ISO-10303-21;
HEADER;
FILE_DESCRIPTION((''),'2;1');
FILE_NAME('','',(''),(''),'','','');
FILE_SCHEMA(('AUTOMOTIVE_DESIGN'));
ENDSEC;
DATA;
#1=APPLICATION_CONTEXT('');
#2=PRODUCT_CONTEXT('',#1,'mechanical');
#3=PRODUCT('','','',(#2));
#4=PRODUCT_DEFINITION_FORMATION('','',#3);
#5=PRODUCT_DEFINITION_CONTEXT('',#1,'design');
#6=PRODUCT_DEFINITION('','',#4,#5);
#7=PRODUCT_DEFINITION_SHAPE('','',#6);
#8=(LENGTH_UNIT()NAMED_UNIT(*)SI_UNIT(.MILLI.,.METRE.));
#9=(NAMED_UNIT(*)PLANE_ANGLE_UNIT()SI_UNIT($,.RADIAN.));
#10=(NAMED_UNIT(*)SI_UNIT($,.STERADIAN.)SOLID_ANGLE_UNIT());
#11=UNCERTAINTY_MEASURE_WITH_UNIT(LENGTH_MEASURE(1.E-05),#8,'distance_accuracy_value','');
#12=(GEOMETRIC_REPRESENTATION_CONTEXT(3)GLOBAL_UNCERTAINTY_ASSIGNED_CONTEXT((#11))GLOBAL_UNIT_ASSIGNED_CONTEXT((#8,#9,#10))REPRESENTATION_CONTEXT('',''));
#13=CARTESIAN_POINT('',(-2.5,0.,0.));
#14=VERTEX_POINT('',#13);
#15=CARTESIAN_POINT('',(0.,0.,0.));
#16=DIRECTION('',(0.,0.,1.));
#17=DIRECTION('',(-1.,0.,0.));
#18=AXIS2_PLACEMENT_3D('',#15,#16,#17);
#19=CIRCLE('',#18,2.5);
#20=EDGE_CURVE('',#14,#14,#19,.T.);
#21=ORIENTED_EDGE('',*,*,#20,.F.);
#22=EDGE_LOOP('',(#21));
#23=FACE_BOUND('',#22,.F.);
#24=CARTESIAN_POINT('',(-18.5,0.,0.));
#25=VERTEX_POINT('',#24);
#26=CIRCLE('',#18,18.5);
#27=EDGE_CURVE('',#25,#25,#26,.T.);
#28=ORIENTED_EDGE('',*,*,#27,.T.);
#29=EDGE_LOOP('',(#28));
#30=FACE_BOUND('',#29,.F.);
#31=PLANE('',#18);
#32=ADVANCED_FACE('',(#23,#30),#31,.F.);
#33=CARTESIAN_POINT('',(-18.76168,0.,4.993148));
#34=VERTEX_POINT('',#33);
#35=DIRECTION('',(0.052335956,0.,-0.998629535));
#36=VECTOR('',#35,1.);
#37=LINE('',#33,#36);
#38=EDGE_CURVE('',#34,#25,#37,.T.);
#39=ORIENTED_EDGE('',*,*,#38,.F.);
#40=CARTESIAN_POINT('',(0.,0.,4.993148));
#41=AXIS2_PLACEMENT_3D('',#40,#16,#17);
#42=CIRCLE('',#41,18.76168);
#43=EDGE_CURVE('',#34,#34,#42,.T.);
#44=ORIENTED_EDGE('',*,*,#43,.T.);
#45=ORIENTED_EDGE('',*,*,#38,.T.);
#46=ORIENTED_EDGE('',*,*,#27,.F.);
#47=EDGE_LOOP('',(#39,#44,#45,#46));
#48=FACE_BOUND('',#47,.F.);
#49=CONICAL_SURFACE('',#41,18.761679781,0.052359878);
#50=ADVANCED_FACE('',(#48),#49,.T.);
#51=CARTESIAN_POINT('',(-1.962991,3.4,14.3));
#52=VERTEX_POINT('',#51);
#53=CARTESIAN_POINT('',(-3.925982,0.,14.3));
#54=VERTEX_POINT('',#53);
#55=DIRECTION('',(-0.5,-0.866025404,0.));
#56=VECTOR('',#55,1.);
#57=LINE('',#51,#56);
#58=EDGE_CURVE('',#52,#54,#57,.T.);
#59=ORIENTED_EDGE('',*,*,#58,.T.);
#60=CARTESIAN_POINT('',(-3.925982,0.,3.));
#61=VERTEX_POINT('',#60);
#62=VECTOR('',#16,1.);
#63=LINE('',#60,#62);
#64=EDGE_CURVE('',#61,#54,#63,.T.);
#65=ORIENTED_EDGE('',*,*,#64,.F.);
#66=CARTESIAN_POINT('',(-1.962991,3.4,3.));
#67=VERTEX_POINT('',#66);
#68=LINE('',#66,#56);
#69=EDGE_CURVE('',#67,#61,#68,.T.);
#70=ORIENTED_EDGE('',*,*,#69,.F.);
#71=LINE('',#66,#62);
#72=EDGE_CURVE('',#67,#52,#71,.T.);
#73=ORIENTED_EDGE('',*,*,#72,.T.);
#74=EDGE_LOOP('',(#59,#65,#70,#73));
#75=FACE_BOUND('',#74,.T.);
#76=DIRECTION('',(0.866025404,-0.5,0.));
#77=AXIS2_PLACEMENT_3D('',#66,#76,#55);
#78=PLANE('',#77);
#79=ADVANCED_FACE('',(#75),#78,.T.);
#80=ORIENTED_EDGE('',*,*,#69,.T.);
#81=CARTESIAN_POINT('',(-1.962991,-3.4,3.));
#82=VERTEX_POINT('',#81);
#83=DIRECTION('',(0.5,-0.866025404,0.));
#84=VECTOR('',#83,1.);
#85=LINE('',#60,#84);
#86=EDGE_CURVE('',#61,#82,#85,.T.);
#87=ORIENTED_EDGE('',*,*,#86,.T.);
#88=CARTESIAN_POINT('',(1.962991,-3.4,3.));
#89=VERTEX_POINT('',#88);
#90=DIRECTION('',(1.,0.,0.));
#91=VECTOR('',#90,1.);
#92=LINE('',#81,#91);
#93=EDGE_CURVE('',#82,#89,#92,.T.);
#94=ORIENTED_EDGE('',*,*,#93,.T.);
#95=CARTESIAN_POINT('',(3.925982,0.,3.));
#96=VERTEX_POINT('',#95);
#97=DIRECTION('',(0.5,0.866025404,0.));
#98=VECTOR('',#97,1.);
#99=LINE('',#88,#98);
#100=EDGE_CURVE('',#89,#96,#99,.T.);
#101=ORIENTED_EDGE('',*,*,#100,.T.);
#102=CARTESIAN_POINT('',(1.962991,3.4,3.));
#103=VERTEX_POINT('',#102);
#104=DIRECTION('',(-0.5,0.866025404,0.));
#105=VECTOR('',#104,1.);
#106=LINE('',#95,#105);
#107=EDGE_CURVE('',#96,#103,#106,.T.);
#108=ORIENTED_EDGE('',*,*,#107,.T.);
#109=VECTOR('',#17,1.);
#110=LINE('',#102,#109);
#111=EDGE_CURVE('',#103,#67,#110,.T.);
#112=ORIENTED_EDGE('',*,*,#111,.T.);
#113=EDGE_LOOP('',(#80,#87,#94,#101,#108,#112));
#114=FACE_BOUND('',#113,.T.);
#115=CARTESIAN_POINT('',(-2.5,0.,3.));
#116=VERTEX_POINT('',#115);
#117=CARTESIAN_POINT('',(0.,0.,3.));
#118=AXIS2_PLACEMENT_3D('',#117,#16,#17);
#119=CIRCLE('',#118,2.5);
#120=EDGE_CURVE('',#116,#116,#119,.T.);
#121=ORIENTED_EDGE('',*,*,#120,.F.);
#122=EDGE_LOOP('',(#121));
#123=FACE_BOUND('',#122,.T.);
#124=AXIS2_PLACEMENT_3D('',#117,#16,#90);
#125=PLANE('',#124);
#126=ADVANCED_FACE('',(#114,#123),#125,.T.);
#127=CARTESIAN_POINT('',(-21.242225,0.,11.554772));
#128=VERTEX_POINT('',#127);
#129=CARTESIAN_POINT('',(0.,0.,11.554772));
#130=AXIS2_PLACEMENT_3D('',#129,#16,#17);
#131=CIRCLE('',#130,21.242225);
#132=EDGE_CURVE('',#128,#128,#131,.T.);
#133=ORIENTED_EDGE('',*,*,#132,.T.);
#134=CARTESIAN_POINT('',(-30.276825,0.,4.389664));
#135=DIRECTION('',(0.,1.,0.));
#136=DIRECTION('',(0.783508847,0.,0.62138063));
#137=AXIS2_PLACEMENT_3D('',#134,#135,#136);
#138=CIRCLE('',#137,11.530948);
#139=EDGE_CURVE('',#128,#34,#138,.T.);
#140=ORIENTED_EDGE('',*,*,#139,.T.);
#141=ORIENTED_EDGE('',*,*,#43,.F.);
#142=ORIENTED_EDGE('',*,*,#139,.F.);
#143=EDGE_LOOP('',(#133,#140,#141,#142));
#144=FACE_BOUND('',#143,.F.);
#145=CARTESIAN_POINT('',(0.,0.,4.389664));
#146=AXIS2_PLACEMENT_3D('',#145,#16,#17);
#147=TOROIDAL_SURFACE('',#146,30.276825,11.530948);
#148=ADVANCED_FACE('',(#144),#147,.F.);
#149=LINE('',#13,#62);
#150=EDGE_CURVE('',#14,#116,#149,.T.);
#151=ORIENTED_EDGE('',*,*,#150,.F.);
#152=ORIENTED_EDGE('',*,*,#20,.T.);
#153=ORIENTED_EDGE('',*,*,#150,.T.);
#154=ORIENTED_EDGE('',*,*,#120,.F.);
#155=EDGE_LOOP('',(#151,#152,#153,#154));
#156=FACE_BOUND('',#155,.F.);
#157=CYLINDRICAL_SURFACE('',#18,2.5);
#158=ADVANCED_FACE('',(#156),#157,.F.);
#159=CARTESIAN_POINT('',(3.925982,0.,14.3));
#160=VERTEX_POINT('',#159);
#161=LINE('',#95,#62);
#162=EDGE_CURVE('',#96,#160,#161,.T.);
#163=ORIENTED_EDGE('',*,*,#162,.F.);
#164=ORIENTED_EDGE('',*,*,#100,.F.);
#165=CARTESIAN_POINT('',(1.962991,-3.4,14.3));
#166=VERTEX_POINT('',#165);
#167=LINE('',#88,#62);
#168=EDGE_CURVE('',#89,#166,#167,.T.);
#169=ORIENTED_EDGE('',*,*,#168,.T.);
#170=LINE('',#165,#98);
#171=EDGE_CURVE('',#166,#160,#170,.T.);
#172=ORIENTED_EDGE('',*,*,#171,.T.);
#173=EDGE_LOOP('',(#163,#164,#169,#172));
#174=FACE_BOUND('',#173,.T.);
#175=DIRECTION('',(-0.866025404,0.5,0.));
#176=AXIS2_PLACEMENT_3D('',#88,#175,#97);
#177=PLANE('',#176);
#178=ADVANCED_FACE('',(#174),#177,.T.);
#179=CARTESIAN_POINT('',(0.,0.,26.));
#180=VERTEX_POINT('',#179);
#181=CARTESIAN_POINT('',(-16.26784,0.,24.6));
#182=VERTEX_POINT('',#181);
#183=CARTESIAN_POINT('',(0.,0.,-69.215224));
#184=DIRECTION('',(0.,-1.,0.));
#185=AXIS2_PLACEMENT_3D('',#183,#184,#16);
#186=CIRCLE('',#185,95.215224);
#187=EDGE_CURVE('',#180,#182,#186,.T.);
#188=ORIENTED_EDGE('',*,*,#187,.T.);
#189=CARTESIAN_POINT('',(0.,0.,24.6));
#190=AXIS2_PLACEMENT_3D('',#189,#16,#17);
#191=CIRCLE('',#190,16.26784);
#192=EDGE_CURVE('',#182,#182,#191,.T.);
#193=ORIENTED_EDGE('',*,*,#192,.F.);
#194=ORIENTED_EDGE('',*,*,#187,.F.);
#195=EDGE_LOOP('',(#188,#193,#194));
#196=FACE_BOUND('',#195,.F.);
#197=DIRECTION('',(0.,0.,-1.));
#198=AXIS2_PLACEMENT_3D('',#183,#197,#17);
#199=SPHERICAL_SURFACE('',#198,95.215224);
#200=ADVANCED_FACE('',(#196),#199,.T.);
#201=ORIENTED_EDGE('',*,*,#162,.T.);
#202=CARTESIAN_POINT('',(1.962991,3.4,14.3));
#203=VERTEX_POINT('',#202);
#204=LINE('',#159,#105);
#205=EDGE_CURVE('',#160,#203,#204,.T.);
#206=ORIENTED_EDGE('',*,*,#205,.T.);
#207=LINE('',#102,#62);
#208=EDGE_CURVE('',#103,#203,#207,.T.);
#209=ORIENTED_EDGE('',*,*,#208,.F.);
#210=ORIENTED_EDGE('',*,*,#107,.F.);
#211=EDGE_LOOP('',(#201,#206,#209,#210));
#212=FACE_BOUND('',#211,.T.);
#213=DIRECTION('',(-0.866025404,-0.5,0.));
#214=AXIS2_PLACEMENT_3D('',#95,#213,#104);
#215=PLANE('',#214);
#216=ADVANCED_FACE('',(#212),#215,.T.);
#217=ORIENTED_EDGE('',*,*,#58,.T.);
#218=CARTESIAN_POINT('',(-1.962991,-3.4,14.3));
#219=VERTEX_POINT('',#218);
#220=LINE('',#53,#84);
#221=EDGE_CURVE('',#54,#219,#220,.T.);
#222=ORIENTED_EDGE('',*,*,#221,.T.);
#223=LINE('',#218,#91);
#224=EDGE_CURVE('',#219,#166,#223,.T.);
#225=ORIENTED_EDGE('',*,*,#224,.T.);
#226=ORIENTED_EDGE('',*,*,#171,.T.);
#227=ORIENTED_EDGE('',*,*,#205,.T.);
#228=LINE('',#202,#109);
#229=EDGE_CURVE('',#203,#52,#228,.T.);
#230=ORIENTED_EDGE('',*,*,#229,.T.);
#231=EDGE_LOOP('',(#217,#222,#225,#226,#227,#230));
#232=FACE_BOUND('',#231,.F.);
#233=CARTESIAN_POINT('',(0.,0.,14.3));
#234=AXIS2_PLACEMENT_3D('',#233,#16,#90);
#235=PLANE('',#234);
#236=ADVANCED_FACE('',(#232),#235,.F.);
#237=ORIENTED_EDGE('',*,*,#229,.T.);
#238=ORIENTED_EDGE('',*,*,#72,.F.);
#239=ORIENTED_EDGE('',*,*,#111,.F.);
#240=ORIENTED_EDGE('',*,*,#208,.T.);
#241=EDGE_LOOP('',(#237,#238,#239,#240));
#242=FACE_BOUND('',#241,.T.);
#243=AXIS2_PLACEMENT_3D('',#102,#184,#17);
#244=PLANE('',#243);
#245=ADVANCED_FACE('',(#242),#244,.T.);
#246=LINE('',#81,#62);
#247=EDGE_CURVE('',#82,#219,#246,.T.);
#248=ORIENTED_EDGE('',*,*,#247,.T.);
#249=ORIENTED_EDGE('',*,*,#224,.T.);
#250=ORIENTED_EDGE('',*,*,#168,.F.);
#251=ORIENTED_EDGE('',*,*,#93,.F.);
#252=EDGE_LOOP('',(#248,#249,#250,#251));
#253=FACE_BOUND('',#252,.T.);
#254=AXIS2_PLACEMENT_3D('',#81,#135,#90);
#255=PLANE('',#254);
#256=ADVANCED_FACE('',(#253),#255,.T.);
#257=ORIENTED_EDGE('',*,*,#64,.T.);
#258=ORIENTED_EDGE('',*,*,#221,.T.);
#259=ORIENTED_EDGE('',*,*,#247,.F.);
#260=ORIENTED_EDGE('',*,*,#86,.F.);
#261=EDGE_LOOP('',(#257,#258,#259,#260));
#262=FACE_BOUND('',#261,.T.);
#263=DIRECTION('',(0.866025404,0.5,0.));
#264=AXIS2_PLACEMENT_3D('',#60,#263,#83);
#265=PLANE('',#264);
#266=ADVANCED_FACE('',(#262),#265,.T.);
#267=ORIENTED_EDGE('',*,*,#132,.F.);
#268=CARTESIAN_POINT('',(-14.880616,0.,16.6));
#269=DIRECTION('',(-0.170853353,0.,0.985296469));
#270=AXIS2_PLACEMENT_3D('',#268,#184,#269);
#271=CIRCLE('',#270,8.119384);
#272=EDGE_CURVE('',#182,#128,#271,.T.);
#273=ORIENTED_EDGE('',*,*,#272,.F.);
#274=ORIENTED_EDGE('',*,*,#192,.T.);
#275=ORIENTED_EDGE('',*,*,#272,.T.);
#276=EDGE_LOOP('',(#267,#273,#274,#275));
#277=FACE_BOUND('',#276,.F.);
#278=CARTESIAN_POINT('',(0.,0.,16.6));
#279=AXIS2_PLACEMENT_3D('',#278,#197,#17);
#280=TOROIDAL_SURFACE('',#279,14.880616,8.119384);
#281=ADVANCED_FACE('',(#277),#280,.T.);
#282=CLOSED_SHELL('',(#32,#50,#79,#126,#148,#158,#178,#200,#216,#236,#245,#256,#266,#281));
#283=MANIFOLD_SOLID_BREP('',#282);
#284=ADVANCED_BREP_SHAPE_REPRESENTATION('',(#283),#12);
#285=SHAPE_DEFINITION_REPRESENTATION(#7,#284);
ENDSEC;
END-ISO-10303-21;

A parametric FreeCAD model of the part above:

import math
import FreeCAD as App
import Part
import Sketcher
from FreeCAD import Vector
Q = App.Units.Quantity


def add_polygon(sketch, points):
    """Adds a closed chain of lines whose ends are joined by coincident constraints."""
    first, n = sketch.GeometryCount, len(points)
    for a, b in zip(points, points[1:] + points[:1]):
        sketch.addGeometry(Part.LineSegment(App.Vector(*a, 0), App.Vector(*b, 0)), False)
    for i in range(n):
        sketch.addConstraint(Sketcher.Constraint("Coincident", first + i, 2, first + (i + 1) % n, 1))

doc = App.newDocument("Part")
body = doc.addObject("PartDesign::Body", "Body")

sketch1 = body.newObject("Sketcher::SketchObject", "Sketch")
sketch1.AttachmentSupport = (doc.getObject("XZ_Plane"), [""])
sketch1.MapMode = "FlatFace"
sketch1.addGeometry(Part.LineSegment(Vector(0, 10, 0), Vector(0, 26, 0)), False)
sketch1.addGeometry(Part.ArcOfCircle(Part.Circle(Vector(0, -69.215224, 0), Vector(0, 0, 1), 95.215224), math.radians(90), math.radians(99.837438)), False)
sketch1.addGeometry(Part.ArcOfCircle(Part.Circle(Vector(-14.880616, 16.6, 0), Vector(0, 0, 1), 8.119384), math.radians(99.837438), math.radians(218.417026)), False)
sketch1.addGeometry(Part.ArcOfCircle(Part.Circle(Vector(-30.276825, 4.389664, 0), Vector(0, 0, 1), 11.530948), math.radians(3), math.radians(38.417026)), False)
sketch1.addGeometry(Part.LineSegment(Vector(-18.76168, 4.993148, 0), Vector(-18.5, 0, 0)), False)
sketch1.addGeometry(Part.LineSegment(Vector(-18.5, 0, 0), Vector(-2.5, 0, 0)), False)
sketch1.addGeometry(Part.LineSegment(Vector(-2.5, 0, 0), Vector(-2.5, 10, 0)), False)
sketch1.addGeometry(Part.LineSegment(Vector(-2.5, 10, 0), Vector(0, 10, 0)), False)
sketch1.addConstraint(Sketcher.Constraint("Coincident", 0, 2, 1, 1))
sketch1.addConstraint(Sketcher.Constraint("Tangent", 1, 2, 2, 1))
sketch1.addConstraint(Sketcher.Constraint("Tangent", 2, 2, 3, 2))
sketch1.addConstraint(Sketcher.Constraint("Tangent", 3, 1, 4, 1))
sketch1.addConstraint(Sketcher.Constraint("Coincident", 4, 2, 5, 1))
sketch1.addConstraint(Sketcher.Constraint("Coincident", 5, 2, 6, 1))
sketch1.addConstraint(Sketcher.Constraint("Coincident", 6, 2, 7, 1))
sketch1.addConstraint(Sketcher.Constraint("Coincident", 7, 2, 0, 1))
sketch1.addConstraint(Sketcher.Constraint("Vertical", 0))
sketch1.addConstraint(Sketcher.Constraint("Horizontal", 5))
sketch1.addConstraint(Sketcher.Constraint("Vertical", 6))
sketch1.addConstraint(Sketcher.Constraint("Horizontal", 7))
sketch1.addConstraint(Sketcher.Constraint("PointOnObject", 1, 3, -2))
sketch1.addConstraint(Sketcher.Constraint("PointOnObject", 0, 2, -2))
sketch1.addConstraint(Sketcher.Constraint("PointOnObject", 4, 2, -1))
sketch1.addConstraint(Sketcher.Constraint("Equal", 5, 0))
sketch1.addConstraint(Sketcher.Constraint("DistanceX", 5, 1, 5, 2, Q("16 mm")))
sketch1.addConstraint(Sketcher.Constraint("DistanceY", 6, 1, 6, 2, Q("10 mm")))
sketch1.addConstraint(Sketcher.Constraint("Angle", 4, Q("-87 deg")))
sketch1.addConstraint(Sketcher.Constraint("Distance", 4, Q("5 mm")))
sketch1.addConstraint(Sketcher.Constraint("DistanceX", 7, 1, 7, 2, Q("2.5 mm")))
sketch1.addConstraint(Sketcher.Constraint("DistanceY", 2, 3, 1, 2, Q("8 mm")))
sketch1.addConstraint(Sketcher.Constraint("DistanceY", -1, 1, 2, 3, Q("16.6 mm")))
sketch1.addConstraint(Sketcher.Constraint("Radius", 3, Q("11.530948 mm")))
revolution = body.newObject("PartDesign::Revolution", "Revolution")
revolution.Profile = sketch1
revolution.ReferenceAxis = (sketch1, ["V_Axis"])
revolution.Angle = 360

sketch2 = body.newObject("Sketcher::SketchObject", "Sketch001")
sketch2.AttachmentSupport = (doc.getObject("XY_Plane"), [""])
sketch2.MapMode = "FlatFace"
sketch2.AttachmentOffset = App.Placement(Vector(0, 0, 3), App.Rotation())
add_polygon(sketch2, [(-1.962991, -3.4), (1.962991, -3.4), (3.925982, 0), (1.962991, 3.4), (-1.962991, 3.4), (-3.925982, 0)])
sketch2.addConstraint(Sketcher.Constraint("Horizontal", 0))
sketch2.addConstraint(Sketcher.Constraint("Horizontal", 3))
sketch2.addConstraint(Sketcher.Constraint("Symmetric", 0, 2, 3, 2, -1, 1))
sketch2.addConstraint(Sketcher.Constraint("Symmetric", 1, 2, 4, 2, -1, 1))
sketch2.addConstraint(Sketcher.Constraint("PointOnObject", 1, 2, -1))
sketch2.addConstraint(Sketcher.Constraint("Parallel", 2, 5))
sketch2.addConstraint(Sketcher.Constraint("Vertical", 0, 2, 2, 2))
sketch2.addConstraint(Sketcher.Constraint("Angle", 1, Q("60 deg")))
sketch2.addConstraint(Sketcher.Constraint("DistanceY", 0, 2, -1, 1, Q("3.4 mm")))
sketch2.addConstraint(Sketcher.Constraint("DistanceX", 0, 1, 0, 2, Q("3.925982 mm")))
pocket1 = body.newObject("PartDesign::Pocket", "Pocket")
pocket1.Profile = sketch2
pocket1.Length = 11.3
pocket1.Reversed = True

doc.recompute()
